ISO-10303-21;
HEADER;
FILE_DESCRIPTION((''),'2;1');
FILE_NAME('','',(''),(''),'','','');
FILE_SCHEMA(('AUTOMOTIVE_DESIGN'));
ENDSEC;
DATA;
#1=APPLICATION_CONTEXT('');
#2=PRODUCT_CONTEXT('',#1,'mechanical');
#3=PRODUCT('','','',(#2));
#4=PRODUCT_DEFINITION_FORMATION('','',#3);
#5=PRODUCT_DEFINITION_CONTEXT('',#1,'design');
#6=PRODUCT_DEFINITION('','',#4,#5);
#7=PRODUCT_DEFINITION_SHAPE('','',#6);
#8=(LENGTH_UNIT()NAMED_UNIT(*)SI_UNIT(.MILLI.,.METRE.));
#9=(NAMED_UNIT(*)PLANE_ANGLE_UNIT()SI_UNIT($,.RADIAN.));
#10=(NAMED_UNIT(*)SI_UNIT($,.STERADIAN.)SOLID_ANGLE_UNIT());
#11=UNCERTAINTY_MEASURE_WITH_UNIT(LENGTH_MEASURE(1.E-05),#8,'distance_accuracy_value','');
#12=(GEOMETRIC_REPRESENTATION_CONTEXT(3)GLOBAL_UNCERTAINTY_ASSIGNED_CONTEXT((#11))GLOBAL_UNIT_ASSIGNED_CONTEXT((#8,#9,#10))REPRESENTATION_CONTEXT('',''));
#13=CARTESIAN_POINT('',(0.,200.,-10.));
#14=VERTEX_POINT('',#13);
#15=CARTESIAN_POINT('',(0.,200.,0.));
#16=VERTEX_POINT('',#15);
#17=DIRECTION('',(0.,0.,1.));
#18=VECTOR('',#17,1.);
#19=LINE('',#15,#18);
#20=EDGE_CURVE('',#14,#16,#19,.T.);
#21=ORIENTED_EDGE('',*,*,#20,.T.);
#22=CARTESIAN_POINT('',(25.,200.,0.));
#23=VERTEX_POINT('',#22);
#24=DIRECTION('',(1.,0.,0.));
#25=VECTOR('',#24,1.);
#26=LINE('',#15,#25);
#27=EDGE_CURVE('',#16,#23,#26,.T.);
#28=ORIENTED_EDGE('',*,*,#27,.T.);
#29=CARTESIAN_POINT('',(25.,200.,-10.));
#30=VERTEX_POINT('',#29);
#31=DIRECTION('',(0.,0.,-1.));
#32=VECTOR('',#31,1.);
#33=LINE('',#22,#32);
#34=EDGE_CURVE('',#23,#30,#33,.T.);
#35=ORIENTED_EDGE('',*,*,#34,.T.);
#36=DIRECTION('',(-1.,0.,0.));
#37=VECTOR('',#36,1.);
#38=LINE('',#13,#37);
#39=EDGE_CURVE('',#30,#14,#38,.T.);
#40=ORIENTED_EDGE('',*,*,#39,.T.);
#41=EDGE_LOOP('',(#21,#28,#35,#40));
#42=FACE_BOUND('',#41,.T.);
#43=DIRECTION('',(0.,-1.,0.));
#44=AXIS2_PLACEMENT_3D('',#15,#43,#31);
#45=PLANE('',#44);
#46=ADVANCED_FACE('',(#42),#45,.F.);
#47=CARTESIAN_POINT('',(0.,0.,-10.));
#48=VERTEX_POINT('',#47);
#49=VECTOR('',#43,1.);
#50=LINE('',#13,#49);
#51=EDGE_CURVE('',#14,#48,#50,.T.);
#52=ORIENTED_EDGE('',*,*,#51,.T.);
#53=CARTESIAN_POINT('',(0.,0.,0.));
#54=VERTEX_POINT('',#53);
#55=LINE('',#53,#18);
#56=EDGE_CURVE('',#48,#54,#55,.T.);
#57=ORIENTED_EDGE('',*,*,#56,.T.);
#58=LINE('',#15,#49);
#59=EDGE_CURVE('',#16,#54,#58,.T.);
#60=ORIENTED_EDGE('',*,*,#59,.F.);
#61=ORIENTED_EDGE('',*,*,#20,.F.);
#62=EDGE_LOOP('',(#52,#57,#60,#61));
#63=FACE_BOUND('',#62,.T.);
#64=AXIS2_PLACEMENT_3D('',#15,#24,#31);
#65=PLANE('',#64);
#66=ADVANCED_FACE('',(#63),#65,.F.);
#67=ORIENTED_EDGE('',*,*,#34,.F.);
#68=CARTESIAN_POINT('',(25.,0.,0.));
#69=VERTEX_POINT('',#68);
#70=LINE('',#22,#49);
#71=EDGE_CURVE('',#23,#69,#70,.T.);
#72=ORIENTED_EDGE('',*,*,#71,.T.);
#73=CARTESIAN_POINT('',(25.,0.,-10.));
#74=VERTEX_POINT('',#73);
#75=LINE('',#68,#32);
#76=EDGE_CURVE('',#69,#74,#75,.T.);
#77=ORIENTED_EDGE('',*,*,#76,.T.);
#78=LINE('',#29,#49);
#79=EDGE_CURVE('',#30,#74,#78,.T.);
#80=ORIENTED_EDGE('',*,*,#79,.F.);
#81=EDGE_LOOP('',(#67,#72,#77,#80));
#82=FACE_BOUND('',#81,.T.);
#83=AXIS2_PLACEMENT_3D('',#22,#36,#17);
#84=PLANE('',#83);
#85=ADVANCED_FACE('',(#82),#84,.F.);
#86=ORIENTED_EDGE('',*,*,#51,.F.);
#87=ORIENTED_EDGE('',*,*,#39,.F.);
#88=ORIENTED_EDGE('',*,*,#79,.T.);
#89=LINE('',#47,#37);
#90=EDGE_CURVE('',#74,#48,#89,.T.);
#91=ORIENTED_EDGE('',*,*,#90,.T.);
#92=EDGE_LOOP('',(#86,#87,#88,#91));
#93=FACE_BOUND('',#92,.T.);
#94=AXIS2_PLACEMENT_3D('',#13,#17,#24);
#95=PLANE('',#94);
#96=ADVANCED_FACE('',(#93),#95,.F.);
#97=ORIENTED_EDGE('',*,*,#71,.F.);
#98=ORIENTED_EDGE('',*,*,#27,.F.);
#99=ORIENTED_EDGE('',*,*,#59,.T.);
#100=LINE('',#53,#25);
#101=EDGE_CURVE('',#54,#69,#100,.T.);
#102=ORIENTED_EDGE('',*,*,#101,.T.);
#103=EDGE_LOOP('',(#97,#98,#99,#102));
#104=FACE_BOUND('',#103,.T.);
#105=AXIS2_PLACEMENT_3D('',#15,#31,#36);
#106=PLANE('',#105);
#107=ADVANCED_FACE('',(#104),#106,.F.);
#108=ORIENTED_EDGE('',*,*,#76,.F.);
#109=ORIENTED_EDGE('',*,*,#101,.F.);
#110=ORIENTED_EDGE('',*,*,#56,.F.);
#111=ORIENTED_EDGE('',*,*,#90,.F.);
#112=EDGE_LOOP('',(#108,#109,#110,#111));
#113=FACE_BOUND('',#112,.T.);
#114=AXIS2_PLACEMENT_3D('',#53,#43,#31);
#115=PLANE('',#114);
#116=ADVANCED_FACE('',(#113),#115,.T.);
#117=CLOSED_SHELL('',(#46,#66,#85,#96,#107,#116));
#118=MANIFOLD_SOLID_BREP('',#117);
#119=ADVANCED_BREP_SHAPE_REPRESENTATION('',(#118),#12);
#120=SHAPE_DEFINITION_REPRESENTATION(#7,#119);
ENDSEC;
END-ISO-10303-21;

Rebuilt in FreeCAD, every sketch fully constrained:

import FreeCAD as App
import Part
import Sketcher
from FreeCAD import Vector


def add_polygon(sketch, points):
    """Adds a closed chain of lines whose ends are joined by coincident constraints."""
    first, n = sketch.GeometryCount, len(points)
    for a, b in zip(points, points[1:] + points[:1]):
        sketch.addGeometry(Part.LineSegment(App.Vector(*a, 0), App.Vector(*b, 0)), False)
    for i in range(n):
        sketch.addConstraint(Sketcher.Constraint("Coincident", first + i, 2, first + (i + 1) % n, 1))

doc = App.newDocument("Part")
body = doc.addObject("PartDesign::Body", "Body")

sketch1 = body.newObject("Sketcher::SketchObject", "Sketch")
sketch1.AttachmentSupport = (doc.getObject("XZ_Plane"), [""])
sketch1.MapMode = "FlatFace"
add_polygon(sketch1, [(0, -10), (0, 0), (25, 0), (25, -10)])
sketch1.addConstraint([
    Sketcher.Constraint("Vertical", 0),
    Sketcher.Constraint("Horizontal", 1),
    Sketcher.Constraint("Vertical", 2),
    Sketcher.Constraint("Horizontal", 3),
    Sketcher.Constraint("Coincident", 0, 2, -1, 1),
    Sketcher.Constraint("DistanceX", 1, 1, 1, 2, 25.0),
    Sketcher.Constraint("DistanceY", 0, 1, 0, 2, 10.0),
])
pad1 = body.newObject("PartDesign::Pad", "Pad")
pad1.Profile = sketch1
pad1.Length = 200
pad1.Reversed = True

doc.recompute()
